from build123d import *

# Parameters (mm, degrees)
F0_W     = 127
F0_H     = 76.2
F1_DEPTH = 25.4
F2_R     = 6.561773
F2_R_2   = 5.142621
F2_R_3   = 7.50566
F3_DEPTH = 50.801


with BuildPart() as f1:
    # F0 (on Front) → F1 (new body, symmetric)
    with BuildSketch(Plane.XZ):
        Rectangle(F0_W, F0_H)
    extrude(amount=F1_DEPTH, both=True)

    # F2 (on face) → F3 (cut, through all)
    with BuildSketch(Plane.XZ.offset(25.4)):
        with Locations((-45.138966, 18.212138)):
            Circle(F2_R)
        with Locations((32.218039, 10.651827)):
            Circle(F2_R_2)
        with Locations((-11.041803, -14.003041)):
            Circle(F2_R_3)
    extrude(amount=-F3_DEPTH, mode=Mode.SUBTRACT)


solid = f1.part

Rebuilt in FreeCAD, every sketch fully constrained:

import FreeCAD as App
import Part
import Sketcher
Q = App.Units.Quantity


def add_polygon(sketch, points):
    """Adds a closed chain of lines whose ends are joined by coincident constraints."""
    first, n = sketch.GeometryCount, len(points)
    for a, b in zip(points, points[1:] + points[:1]):
        sketch.addGeometry(Part.LineSegment(App.Vector(*a, 0), App.Vector(*b, 0)), False)
    for i in range(n):
        sketch.addConstraint(Sketcher.Constraint("Coincident", first + i, 2, first + (i + 1) % n, 1))

doc = App.newDocument("Part")
body = doc.addObject("PartDesign::Body", "Body")

# Sketch on XZ plane
sketch1 = doc.addObject("Sketcher::SketchObject", "Sketch")
body.addObject(sketch1)
sketch1.AttachmentSupport = (doc.XZ_Plane, [""])
sketch1.MapMode = "FlatFace"
add_polygon(sketch1, [(-64, 38), (-64, -38), (64, -38), (64, 38)])  # lines 0-3
sketch1.addConstraint(Sketcher.Constraint("Vertical", 0))
sketch1.addConstraint(Sketcher.Constraint("Horizontal", 1))
sketch1.addConstraint(Sketcher.Constraint("Vertical", 2))
sketch1.addConstraint(Sketcher.Constraint("Horizontal", 3))
sketch1.addConstraint(Sketcher.Constraint("Symmetric", 0, 2, 2, 2, -1, 1))
sketch1.addConstraint(Sketcher.Constraint("DistanceX", 1, 1, 1, 2, Q("5 in")))
sketch1.addConstraint(Sketcher.Constraint("DistanceY", 0, 2, 0, 1, Q("3 in")))
pad1 = doc.addObject("PartDesign::Pad", "Pad")
body.addObject(pad1)
pad1.Profile = sketch1
pad1.Length = Q("2 in")
pad1.Midplane = True

# Sketch on XZ plane
sketch2 = doc.addObject("Sketcher::SketchObject", "Sketch001")
body.addObject(sketch2)
sketch2.AttachmentSupport = (doc.XZ_Plane, [""])
sketch2.MapMode = "FlatFace"
sketch2.AttachmentOffset = App.Placement(App.Vector(0, 0, 1 * 25.4), App.Rotation())
sketch2.addGeometry(Part.Circle(App.Vector(-45, 18, 0), App.Vector(0, 0, 1), 7), False)
sketch2.addGeometry(Part.Circle(App.Vector(32, 11, 0), App.Vector(0, 0, 1), 5), False)
sketch2.addGeometry(Part.Circle(App.Vector(-11, -14, 0), App.Vector(0, 0, 1), 8), False)
sketch2.addConstraint(Sketcher.Constraint("Diameter", 2, 15.01132))
sketch2.addConstraint(Sketcher.Constraint("Diameter", 0, 13.123546))
sketch2.addConstraint(Sketcher.Constraint("Diameter", 1, 10.285242))
sketch2.addConstraint(Sketcher.Constraint("DistanceX", -1, 1, 1, 3, 32.218039))
sketch2.addConstraint(Sketcher.Constraint("DistanceY", 2, 3, -1, 1, 14.003041))
sketch2.addConstraint(Sketcher.Constraint("DistanceY", 1, 3, 0, 3, 7.560311))
sketch2.addConstraint(Sketcher.Constraint("DistanceY", 2, 3, 0, 3, 32.215179))
sketch2.addConstraint(Sketcher.Constraint("DistanceX", 0, 3, -1, 1, 45.138966))
sketch2.addConstraint(Sketcher.Constraint("DistanceX", 2, 3, -1, 1, 11.041803))
pocket1 = doc.addObject("PartDesign::Pocket", "Pocket")
body.addObject(pocket1)
pocket1.Profile = sketch2
pocket1.Type = "ThroughAll"

doc.recompute()
